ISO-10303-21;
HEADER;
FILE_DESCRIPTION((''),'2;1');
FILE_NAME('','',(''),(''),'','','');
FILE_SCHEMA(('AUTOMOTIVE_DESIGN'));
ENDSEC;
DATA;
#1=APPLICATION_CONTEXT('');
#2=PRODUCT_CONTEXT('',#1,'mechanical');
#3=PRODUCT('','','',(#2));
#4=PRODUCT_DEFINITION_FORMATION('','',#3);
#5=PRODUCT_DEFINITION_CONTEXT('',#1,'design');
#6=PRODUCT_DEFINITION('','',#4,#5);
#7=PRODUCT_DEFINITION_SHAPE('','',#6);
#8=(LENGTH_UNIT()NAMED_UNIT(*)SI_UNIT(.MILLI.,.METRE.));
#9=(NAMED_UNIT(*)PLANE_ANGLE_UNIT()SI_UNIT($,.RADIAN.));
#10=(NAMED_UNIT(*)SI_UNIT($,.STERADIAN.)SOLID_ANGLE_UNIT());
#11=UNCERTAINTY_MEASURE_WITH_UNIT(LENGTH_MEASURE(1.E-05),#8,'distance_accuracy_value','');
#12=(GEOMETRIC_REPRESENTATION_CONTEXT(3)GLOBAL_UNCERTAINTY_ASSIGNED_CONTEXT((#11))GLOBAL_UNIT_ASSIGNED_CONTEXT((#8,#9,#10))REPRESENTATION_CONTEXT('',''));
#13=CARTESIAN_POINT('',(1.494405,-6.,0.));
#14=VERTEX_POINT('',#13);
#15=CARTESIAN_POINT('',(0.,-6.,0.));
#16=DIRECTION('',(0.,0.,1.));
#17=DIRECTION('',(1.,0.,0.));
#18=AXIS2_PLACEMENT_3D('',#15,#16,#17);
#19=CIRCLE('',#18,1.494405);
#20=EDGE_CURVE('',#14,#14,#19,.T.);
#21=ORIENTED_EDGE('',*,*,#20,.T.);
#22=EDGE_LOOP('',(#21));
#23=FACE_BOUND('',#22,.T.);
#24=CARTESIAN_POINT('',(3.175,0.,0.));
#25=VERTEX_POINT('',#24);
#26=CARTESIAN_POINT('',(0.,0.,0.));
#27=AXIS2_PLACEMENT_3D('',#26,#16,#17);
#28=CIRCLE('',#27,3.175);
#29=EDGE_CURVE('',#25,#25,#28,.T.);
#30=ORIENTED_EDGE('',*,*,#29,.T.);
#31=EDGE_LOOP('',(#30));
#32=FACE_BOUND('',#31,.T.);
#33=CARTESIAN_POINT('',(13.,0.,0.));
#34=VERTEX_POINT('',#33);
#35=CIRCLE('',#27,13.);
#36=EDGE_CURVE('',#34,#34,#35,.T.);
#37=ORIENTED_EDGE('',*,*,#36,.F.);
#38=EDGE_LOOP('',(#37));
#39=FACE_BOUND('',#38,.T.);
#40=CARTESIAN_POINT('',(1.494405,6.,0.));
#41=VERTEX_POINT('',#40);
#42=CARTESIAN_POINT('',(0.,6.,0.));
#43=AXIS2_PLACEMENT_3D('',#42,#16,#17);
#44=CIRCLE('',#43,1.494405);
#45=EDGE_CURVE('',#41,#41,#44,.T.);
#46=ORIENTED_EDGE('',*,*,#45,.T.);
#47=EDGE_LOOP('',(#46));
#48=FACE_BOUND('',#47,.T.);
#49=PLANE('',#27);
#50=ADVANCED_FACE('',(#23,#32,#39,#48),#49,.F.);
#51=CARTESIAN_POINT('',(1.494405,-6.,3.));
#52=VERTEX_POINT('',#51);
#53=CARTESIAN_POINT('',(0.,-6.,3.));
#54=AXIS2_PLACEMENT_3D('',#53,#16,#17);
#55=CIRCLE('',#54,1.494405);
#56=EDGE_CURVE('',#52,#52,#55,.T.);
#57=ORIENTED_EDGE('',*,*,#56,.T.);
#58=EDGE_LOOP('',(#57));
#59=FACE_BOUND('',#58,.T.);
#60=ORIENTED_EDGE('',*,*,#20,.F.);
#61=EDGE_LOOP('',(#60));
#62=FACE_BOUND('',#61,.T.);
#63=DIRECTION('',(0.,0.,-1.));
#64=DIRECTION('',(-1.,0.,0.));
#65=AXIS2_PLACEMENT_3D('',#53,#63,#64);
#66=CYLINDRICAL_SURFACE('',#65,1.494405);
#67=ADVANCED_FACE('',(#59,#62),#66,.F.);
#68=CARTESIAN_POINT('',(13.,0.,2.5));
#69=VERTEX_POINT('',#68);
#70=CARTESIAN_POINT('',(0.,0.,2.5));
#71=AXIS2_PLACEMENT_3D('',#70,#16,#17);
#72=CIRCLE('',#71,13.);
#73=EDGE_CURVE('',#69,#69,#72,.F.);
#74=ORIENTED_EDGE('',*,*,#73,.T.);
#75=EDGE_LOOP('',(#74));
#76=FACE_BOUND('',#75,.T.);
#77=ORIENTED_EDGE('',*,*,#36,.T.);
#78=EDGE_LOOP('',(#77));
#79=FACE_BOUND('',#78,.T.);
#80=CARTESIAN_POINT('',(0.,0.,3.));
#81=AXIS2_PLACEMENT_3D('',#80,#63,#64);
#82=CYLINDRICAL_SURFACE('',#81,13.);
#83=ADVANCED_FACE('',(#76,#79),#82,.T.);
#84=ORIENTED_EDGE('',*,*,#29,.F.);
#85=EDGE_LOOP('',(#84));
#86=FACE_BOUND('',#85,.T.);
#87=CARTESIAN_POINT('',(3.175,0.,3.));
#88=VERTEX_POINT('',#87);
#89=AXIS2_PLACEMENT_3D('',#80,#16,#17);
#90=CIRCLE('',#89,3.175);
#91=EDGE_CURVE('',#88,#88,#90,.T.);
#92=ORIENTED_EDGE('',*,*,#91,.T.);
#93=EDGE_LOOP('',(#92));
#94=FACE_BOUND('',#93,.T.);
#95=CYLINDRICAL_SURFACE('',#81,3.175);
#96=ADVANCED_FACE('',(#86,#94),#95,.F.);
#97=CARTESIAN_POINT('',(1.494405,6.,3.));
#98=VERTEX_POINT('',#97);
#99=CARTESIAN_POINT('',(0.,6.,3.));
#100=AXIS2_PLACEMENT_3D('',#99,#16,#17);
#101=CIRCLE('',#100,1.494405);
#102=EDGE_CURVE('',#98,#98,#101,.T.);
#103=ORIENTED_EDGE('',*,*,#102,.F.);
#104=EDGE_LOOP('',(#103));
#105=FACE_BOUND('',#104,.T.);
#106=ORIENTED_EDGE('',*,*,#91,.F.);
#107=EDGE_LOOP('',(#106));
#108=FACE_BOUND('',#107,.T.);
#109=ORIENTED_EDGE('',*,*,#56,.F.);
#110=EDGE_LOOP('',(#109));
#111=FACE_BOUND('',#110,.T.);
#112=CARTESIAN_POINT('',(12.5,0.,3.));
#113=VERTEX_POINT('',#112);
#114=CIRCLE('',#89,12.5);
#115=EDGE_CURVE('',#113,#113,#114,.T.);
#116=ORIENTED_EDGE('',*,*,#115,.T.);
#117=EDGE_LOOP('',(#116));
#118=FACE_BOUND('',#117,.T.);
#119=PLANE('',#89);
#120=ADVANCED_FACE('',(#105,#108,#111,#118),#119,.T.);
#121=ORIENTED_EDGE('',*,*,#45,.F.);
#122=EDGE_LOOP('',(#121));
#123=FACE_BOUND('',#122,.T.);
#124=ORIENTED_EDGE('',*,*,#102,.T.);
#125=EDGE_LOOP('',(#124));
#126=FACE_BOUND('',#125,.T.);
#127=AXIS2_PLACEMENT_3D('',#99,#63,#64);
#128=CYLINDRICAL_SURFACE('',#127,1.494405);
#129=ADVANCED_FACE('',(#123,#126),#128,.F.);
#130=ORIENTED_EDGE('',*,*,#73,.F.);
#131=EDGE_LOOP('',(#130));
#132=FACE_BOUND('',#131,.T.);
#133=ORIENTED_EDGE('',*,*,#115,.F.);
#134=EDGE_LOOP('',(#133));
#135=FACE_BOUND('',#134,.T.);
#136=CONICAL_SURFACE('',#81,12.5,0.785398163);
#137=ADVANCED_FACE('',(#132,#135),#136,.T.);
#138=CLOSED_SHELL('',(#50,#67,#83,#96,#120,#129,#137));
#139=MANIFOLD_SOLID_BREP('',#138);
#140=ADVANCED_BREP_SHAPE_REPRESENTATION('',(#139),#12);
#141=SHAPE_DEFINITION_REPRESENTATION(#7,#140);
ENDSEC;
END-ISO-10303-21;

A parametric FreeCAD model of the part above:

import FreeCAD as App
import Part
import Sketcher
Q = App.Units.Quantity


def edges_at(feature, points):
    """Names of the edges that pass closest to the given points."""
    edges = feature.Shape.Edges
    near = lambda p: min(range(len(edges)), key=lambda i: edges[i].distToShape(Part.Vertex(*p))[0])
    return sorted({f"Edge{near(p) + 1}" for p in points})

doc = App.newDocument("Part")
body = doc.addObject("PartDesign::Body", "Body")

# Sketch on XY plane
sketch1 = doc.addObject("Sketcher::SketchObject", "Sketch")
body.addObject(sketch1)
sketch1.AttachmentSupport = (doc.XY_Plane, [""])
sketch1.MapMode = "FlatFace"
sketch1.addGeometry([
    Part.Circle(App.Vector(0, 0, 0), App.Vector(0, 0, 1), 13),
    Part.Circle(App.Vector(0, -6, 0), App.Vector(0, 0, 1), 1.5),
    Part.Circle(App.Vector(0, 0, 0), App.Vector(0, 0, 1), 3.2),
    Part.Circle(App.Vector(0, 6, 0), App.Vector(0, 0, 1), 1.5),
], False)
sketch1.addConstraint([
    Sketcher.Constraint("Coincident", 0, 3, -1, 1),
    Sketcher.Constraint("Coincident", 2, 3, -1, 1),
    Sketcher.Constraint("Equal", 1, 3),
    Sketcher.Constraint("Symmetric", 1, 3, 3, 3, -1, 1),
    Sketcher.Constraint("PointOnObject", 1, 3, -2),
    Sketcher.Constraint("Diameter", 0, Q("26 mm")),
    Sketcher.Constraint("Diameter", 2, Q("6.35 mm")),
    Sketcher.Constraint("DistanceY", 1, 3, -1, 1, Q("6 mm")),
    Sketcher.Constraint("Diameter", 1, Q("2.988811 mm")),
])
pad1 = doc.addObject("PartDesign::Pad", "Pad")
body.addObject(pad1)
pad1.Profile = sketch1
pad1.Length = 3
doc.recompute()

chamfer = doc.addObject("PartDesign::Chamfer", "Chamfer")
body.addObject(chamfer)
chamfer.Base = (pad1, edges_at(pad1, [(-13, 0, 3)]))
chamfer.Size = 0.5

doc.recompute()
